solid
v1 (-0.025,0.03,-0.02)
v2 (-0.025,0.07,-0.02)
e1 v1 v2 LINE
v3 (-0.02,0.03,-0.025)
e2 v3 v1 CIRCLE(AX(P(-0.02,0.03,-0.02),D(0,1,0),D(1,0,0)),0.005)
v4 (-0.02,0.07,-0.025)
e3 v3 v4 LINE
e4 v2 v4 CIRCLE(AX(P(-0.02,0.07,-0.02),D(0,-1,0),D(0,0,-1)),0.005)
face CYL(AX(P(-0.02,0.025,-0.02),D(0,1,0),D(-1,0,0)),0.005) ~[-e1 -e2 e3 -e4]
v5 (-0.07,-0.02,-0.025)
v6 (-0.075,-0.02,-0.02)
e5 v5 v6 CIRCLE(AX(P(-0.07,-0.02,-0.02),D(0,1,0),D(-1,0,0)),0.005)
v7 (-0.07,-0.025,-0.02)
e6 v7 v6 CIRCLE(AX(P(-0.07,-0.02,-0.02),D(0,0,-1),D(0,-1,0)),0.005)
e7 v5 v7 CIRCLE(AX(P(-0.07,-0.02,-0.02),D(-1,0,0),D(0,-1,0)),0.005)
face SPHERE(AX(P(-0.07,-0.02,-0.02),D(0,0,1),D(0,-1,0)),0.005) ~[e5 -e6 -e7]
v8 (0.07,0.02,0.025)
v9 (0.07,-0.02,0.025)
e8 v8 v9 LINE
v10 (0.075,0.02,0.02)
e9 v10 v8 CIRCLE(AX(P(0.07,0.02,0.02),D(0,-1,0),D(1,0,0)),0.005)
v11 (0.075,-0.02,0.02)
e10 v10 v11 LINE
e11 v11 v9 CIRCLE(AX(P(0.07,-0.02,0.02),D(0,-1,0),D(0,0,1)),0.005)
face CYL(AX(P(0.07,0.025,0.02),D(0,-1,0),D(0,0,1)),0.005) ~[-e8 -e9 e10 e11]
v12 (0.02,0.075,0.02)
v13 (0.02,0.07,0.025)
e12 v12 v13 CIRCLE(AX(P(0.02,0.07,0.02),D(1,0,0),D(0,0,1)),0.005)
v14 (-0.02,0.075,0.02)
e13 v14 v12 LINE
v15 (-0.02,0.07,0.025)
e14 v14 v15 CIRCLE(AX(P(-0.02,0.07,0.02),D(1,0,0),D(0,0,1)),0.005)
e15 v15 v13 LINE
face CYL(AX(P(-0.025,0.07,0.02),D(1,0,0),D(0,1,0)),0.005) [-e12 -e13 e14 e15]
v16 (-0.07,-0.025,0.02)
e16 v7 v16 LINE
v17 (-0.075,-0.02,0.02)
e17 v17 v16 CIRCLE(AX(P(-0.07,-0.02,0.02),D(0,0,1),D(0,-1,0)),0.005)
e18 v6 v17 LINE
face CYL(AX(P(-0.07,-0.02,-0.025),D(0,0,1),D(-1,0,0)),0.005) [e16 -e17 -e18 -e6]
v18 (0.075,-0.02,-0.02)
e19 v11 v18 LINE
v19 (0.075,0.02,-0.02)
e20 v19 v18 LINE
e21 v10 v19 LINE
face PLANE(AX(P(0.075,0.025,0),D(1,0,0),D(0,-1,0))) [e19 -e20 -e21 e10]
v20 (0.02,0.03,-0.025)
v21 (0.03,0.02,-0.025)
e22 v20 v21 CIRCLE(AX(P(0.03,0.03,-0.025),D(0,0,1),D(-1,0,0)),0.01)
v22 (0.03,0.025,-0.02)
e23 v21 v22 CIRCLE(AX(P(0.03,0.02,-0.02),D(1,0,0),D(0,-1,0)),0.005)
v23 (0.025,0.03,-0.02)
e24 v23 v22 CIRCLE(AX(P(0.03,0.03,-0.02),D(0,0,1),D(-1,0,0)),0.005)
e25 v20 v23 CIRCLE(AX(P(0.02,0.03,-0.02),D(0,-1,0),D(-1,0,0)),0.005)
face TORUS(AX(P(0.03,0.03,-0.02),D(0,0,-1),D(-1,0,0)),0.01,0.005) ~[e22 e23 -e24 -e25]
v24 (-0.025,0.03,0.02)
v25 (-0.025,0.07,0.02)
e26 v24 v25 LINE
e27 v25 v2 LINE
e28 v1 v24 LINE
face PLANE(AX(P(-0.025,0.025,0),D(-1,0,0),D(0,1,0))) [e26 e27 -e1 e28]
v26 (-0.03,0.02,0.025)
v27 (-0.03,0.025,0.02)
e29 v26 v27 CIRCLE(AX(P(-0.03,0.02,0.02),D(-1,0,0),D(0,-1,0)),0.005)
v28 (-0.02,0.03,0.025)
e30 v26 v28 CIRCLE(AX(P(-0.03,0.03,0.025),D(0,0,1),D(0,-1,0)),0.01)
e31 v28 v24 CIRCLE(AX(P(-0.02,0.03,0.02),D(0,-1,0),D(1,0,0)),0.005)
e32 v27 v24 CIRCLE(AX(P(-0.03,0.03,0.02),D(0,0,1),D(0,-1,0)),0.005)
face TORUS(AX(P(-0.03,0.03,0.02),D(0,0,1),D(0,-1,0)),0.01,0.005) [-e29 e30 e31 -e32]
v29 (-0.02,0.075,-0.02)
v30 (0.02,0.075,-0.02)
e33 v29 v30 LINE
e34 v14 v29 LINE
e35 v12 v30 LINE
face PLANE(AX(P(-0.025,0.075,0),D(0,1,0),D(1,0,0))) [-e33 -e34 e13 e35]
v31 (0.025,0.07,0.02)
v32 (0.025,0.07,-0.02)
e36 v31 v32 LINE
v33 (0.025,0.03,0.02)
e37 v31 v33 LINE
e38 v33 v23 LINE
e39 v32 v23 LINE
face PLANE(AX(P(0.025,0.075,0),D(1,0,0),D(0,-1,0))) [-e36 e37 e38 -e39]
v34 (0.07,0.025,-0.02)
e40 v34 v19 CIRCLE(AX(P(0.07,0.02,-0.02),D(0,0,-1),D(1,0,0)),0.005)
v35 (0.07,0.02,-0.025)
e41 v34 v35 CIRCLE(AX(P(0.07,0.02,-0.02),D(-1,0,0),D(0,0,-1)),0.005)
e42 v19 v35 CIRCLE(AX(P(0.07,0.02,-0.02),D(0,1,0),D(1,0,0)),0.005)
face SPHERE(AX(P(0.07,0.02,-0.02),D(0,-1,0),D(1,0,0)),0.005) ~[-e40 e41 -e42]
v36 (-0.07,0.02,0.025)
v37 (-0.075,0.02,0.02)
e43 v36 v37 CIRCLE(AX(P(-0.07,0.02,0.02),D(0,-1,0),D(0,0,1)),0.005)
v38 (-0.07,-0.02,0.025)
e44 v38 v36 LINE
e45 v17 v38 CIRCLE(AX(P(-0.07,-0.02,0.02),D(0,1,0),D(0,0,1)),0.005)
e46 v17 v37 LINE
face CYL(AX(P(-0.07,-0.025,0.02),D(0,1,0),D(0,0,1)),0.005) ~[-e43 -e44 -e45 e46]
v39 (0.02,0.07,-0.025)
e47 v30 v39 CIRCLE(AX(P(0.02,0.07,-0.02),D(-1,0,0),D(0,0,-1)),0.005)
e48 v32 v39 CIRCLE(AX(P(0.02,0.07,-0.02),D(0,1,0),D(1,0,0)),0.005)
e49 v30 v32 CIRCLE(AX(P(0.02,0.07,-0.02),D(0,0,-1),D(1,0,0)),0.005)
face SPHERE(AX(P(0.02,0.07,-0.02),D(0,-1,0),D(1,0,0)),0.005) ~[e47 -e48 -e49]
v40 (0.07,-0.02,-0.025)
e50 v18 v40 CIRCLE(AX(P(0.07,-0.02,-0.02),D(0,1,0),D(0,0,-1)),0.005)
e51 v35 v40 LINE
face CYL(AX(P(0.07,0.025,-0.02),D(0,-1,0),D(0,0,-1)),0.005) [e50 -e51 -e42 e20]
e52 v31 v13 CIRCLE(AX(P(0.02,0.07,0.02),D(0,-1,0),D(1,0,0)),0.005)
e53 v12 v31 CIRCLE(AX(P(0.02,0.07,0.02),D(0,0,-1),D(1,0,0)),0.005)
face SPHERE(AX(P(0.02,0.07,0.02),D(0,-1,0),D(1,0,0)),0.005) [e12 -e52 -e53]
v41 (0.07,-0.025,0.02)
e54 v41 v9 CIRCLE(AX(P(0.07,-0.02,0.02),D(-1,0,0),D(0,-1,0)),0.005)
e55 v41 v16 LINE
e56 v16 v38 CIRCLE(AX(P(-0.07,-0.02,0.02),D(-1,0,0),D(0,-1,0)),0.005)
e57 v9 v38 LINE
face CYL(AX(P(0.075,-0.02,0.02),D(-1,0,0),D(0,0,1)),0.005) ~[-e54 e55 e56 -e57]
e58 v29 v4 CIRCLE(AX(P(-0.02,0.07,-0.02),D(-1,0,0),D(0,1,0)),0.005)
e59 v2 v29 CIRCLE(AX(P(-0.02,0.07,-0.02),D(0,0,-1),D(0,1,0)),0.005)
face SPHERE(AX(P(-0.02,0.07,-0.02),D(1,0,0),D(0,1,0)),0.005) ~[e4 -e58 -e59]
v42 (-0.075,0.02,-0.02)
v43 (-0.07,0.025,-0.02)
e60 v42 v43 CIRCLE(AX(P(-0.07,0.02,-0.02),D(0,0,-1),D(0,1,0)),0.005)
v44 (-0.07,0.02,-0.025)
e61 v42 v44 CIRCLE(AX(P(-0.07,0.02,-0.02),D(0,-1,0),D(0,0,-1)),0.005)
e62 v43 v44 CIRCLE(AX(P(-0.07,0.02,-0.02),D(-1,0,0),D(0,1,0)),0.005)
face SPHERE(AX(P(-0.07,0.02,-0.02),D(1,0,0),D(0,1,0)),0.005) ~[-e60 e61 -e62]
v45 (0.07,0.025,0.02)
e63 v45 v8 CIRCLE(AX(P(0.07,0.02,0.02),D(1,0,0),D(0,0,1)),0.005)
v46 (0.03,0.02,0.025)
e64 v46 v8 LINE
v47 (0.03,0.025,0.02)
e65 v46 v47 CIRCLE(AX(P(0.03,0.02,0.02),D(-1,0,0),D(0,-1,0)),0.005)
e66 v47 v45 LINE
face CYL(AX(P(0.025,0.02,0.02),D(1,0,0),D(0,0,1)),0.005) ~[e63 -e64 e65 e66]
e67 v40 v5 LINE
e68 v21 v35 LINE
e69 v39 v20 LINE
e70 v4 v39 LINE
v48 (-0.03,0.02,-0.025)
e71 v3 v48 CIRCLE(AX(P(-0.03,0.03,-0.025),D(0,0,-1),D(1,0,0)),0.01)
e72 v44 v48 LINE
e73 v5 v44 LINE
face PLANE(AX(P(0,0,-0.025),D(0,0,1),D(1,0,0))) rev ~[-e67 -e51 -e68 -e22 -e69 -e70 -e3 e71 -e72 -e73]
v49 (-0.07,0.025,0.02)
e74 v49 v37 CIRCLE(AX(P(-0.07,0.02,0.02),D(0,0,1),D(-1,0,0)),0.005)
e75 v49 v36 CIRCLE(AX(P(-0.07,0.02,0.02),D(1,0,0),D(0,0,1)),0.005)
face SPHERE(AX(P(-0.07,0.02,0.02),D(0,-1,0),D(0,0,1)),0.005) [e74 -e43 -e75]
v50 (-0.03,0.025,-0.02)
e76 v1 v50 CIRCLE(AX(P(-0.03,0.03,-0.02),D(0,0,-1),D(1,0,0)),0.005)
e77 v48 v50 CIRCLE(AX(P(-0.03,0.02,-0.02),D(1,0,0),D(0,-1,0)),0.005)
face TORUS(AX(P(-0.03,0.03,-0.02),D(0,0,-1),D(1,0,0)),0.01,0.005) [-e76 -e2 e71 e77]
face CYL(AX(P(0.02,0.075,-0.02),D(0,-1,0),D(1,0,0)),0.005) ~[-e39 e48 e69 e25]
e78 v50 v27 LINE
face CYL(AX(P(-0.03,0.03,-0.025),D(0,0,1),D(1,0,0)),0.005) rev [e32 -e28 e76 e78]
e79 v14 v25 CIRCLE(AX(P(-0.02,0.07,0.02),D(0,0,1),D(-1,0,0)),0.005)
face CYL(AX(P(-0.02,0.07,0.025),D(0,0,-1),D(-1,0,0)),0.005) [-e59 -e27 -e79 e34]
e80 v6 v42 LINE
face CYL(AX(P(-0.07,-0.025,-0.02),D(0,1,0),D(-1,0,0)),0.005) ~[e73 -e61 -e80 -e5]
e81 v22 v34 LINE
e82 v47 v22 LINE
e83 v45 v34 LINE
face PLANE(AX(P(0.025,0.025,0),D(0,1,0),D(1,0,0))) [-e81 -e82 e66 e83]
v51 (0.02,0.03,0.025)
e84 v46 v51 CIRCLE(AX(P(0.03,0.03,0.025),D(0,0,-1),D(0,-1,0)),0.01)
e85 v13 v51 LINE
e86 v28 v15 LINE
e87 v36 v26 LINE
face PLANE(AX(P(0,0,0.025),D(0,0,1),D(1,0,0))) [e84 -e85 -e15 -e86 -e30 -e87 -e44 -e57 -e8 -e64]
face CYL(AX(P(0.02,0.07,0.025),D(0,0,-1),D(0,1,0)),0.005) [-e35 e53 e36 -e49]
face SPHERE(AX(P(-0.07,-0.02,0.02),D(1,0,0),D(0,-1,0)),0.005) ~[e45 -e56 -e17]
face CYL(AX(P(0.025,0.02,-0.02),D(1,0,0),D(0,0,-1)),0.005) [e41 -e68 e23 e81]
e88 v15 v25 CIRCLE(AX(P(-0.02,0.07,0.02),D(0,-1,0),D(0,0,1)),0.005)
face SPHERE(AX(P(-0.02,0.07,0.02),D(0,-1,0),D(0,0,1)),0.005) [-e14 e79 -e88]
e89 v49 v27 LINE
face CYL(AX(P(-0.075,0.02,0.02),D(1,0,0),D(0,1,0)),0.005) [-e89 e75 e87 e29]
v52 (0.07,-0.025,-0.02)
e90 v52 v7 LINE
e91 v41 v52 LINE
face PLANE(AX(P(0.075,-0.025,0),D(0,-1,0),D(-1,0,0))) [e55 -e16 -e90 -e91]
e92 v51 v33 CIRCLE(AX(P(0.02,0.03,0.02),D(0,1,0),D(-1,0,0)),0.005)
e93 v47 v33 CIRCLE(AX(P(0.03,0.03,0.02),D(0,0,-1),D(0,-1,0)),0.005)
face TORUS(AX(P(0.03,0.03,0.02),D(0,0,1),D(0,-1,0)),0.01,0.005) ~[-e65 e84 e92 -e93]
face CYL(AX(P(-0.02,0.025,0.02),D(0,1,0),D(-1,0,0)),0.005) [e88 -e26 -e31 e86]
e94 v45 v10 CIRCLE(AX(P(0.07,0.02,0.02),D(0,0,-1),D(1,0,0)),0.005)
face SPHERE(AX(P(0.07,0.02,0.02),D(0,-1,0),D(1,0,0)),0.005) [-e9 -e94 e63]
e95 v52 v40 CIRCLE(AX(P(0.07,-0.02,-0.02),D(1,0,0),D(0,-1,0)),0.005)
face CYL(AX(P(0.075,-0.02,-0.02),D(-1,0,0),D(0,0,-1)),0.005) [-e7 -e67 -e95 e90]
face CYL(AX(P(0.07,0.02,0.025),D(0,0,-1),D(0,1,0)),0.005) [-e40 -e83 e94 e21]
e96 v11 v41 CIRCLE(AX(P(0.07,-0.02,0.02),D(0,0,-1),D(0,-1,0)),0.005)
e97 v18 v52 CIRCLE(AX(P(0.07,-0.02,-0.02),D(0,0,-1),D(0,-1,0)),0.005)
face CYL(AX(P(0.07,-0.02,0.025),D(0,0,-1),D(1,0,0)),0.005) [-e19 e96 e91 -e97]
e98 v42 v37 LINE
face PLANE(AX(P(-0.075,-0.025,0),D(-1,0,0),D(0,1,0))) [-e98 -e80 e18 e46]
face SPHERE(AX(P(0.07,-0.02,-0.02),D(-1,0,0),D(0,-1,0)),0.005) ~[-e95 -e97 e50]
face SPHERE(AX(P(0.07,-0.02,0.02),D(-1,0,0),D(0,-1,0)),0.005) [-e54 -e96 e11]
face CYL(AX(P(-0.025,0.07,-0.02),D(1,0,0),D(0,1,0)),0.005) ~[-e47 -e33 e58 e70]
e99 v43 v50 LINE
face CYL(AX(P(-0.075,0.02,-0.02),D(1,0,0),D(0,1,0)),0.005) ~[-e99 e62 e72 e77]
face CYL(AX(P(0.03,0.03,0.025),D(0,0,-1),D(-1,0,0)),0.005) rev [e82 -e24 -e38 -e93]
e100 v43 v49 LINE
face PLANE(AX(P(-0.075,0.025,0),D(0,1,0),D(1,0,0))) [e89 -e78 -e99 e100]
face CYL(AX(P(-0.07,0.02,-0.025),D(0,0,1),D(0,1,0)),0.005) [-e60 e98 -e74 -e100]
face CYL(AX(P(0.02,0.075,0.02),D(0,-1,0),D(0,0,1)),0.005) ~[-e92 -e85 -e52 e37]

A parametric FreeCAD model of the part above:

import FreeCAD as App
import Part
import Sketcher

V = App.Vector
Q = App.Units.Quantity

doc = App.newDocument("Part")
body = doc.addObject("PartDesign::Body", "Body")

# Sketch on XY plane
sketch1 = doc.addObject("Sketcher::SketchObject", "Sketch")
body.addObject(sketch1)
sketch1.AttachmentSupport = (doc.XY_Plane, [""])
sketch1.MapMode = "FlatFace"
sketch1.addGeometry(Part.LineSegment(V(-0.03, 0.07, 0), V(-0.03, 0.03, 0)), False)
sketch1.addGeometry(Part.LineSegment(V(-0.03, 0.03, 0), V(-0.07, 0.03, 0)), False)
sketch1.addGeometry(Part.LineSegment(V(-0.07, 0.03, 0), V(-0.07, -0.03, 0)), False)
sketch1.addGeometry(Part.LineSegment(V(-0.07, -0.03, 0), V(0.07, -0.03, 0)), False)
sketch1.addGeometry(Part.LineSegment(V(0.07, -0.03, 0), V(0.07, 0.03, 0)), False)
sketch1.addGeometry(Part.LineSegment(V(0.07, 0.03, 0), V(0.03, 0.03, 0)), False)
sketch1.addGeometry(Part.LineSegment(V(0.03, 0.03, 0), V(0.03, 0.07, 0)), False)
sketch1.addGeometry(Part.LineSegment(V(0.03, 0.07, 0), V(-0.03, 0.07, 0)), False)
sketch1.addConstraint(Sketcher.Constraint("Coincident", 0, 2, 1, 1))
sketch1.addConstraint(Sketcher.Constraint("Coincident", 1, 2, 2, 1))
sketch1.addConstraint(Sketcher.Constraint("Coincident", 2, 2, 3, 1))
sketch1.addConstraint(Sketcher.Constraint("Coincident", 3, 2, 4, 1))
sketch1.addConstraint(Sketcher.Constraint("Coincident", 4, 2, 5, 1))
sketch1.addConstraint(Sketcher.Constraint("Coincident", 5, 2, 6, 1))
sketch1.addConstraint(Sketcher.Constraint("Coincident", 6, 2, 7, 1))
sketch1.addConstraint(Sketcher.Constraint("Coincident", 7, 2, 0, 1))
sketch1.addConstraint(Sketcher.Constraint("Vertical", 0))
sketch1.addConstraint(Sketcher.Constraint("Horizontal", 1))
sketch1.addConstraint(Sketcher.Constraint("Vertical", 2))
sketch1.addConstraint(Sketcher.Constraint("Horizontal", 3))
sketch1.addConstraint(Sketcher.Constraint("Vertical", 4))
sketch1.addConstraint(Sketcher.Constraint("Horizontal", 5))
sketch1.addConstraint(Sketcher.Constraint("Vertical", 6))
sketch1.addConstraint(Sketcher.Constraint("Horizontal", 7))
sketch1.addConstraint(Sketcher.Constraint("Symmetric", 1, 2, 3, 2, -1, 1))
sketch1.addConstraint(Sketcher.Constraint("Symmetric", 0, 2, 5, 2, -2))
sketch1.addConstraint(Sketcher.Constraint("Equal", 5, 7))
sketch1.addConstraint(Sketcher.Constraint("Equal", 7, 0))
sketch1.addConstraint(Sketcher.Constraint("Equal", 0, 2))
sketch1.addConstraint(Sketcher.Constraint("DistanceX", 1, 2, 1, 1, Q("0.05 mm")))
pad1 = doc.addObject("PartDesign::Pad", "Pad")
body.addObject(pad1)
pad1.Profile = sketch1
pad1.Length = 0.05
pad1.Midplane = True
doc.recompute()

fillet = doc.addObject("PartDesign::Fillet", "Fillet")
body.addObject(fillet)
fillet.Base = (pad1, ["Edge1"])
fillet.UseAllEdges = True
fillet.Radius = 0.005

doc.recompute()
